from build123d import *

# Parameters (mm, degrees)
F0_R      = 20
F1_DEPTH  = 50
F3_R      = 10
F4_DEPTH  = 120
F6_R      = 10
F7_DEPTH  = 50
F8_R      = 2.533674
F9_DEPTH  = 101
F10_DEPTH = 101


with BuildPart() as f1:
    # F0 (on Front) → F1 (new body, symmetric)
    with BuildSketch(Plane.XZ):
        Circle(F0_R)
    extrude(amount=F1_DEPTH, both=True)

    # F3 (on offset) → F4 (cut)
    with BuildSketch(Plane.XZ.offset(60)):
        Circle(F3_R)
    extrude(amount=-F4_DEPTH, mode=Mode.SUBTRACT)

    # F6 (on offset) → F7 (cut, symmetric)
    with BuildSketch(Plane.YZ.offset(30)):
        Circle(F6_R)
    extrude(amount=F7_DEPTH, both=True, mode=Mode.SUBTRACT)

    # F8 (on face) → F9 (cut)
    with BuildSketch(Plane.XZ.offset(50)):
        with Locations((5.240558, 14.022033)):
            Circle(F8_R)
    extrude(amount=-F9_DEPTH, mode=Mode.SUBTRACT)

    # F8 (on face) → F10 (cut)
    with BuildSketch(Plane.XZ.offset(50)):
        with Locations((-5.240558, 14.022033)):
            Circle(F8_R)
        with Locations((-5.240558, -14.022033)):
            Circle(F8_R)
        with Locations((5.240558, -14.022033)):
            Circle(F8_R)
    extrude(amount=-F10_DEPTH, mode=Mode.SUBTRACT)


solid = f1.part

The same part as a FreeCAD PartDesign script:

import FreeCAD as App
import Part
import Sketcher
Q = App.Units.Quantity

doc = App.newDocument("Part")
body = doc.addObject("PartDesign::Body", "Body")

# Sketch on XZ plane
sketch1 = doc.addObject("Sketcher::SketchObject", "Sketch")
body.addObject(sketch1)
sketch1.AttachmentSupport = (doc.XZ_Plane, [""])
sketch1.MapMode = "FlatFace"
sketch1.addGeometry(Part.Circle(App.Vector(0, 0, 0), App.Vector(0, 0, 1), 20), False)
sketch1.addConstraint(Sketcher.Constraint("Coincident", 0, 3, -1, 1))
sketch1.addConstraint(Sketcher.Constraint("Diameter", 0, Q("40 mm")))
pad1 = doc.addObject("PartDesign::Pad", "Pad")
body.addObject(pad1)
pad1.Profile = sketch1
pad1.Length = 100
pad1.Midplane = True

# Sketch on XZ plane
sketch2 = doc.addObject("Sketcher::SketchObject", "Sketch001")
body.addObject(sketch2)
sketch2.AttachmentSupport = (doc.XZ_Plane, [""])
sketch2.MapMode = "FlatFace"
sketch2.AttachmentOffset = App.Placement(App.Vector(0, 0, 60), App.Rotation())
sketch2.addGeometry(Part.Circle(App.Vector(0, 0, 0), App.Vector(0, 0, 1), 10), False)
sketch2.addConstraint(Sketcher.Constraint("Coincident", 0, 3, -1, 1))
sketch2.addConstraint(Sketcher.Constraint("Diameter", 0, Q("20 mm")))
pocket1 = doc.addObject("PartDesign::Pocket", "Pocket")
body.addObject(pocket1)
pocket1.Profile = sketch2
pocket1.Length = 120

# Sketch on YZ plane
sketch3 = doc.addObject("Sketcher::SketchObject", "Sketch002")
body.addObject(sketch3)
sketch3.AttachmentSupport = (doc.YZ_Plane, [""])
sketch3.MapMode = "FlatFace"
sketch3.AttachmentOffset = App.Placement(App.Vector(0, 0, 30), App.Rotation())
sketch3.addGeometry(Part.Circle(App.Vector(0, 0, 0), App.Vector(0, 0, 1), 10), False)
sketch3.addConstraint(Sketcher.Constraint("Coincident", 0, 3, -1, 1))
sketch3.addConstraint(Sketcher.Constraint("Diameter", 0, Q("20 mm")))
pocket2 = doc.addObject("PartDesign::Pocket", "Pocket001")
body.addObject(pocket2)
pocket2.Profile = sketch3
pocket2.Length = 100
pocket2.Midplane = True

# Sketch on XZ plane
sketch4 = doc.addObject("Sketcher::SketchObject", "Sketch003")
body.addObject(sketch4)
sketch4.AttachmentSupport = (doc.XZ_Plane, [""])
sketch4.MapMode = "FlatFace"
sketch4.AttachmentOffset = App.Placement(App.Vector(0, 0, 50), App.Rotation())
sketch4.addGeometry(Part.Circle(App.Vector(5.240558, 14.022033, 0), App.Vector(0, 0, 1), 2.533674), False)
sketch4.addConstraint(Sketcher.Constraint("Diameter", 0, Q("5.067348 mm")))
sketch4.addConstraint(Sketcher.Constraint("DistanceX", -1, 1, 0, 3, Q("5.240558 mm")))
sketch4.addConstraint(Sketcher.Constraint("DistanceY", -1, 1, 0, 3, Q("14.022033 mm")))
pocket3 = doc.addObject("PartDesign::Pocket", "Pocket002")
body.addObject(pocket3)
pocket3.Profile = sketch4
pocket3.Length = 101

# Sketch on XZ plane
sketch5 = doc.addObject("Sketcher::SketchObject", "Sketch004")
body.addObject(sketch5)
sketch5.AttachmentSupport = (doc.XZ_Plane, [""])
sketch5.MapMode = "FlatFace"
sketch5.AttachmentOffset = App.Placement(App.Vector(0, 0, 50), App.Rotation())
sketch5.addGeometry(Part.Circle(App.Vector(-5.240558, 14.022033, 0), App.Vector(0, 0, 1), 2.533674), False)
sketch5.addGeometry(Part.Circle(App.Vector(-5.240558, -14.022033, 0), App.Vector(0, 0, 1), 2.533674), False)
sketch5.addGeometry(Part.Circle(App.Vector(5.240558, -14.022033, 0), App.Vector(0, 0, 1), 2.533674), False)
sketch5.addConstraint(Sketcher.Constraint("Equal", 0, 1))
sketch5.addConstraint(Sketcher.Constraint("Equal", 1, 2))
sketch5.addConstraint(Sketcher.Constraint("Symmetric", 0, 3, 2, 3, -1, 1))
sketch5.addConstraint(Sketcher.Constraint("Symmetric", 1, 3, 2, 3, -2))
sketch5.addConstraint(Sketcher.Constraint("Diameter", 0, Q("5.067348 mm")))
sketch5.addConstraint(Sketcher.Constraint("DistanceX", 0, 3, -1, 1, Q("5.240558 mm")))
sketch5.addConstraint(Sketcher.Constraint("DistanceY", -1, 1, 0, 3, Q("14.022033 mm")))
pocket4 = doc.addObject("PartDesign::Pocket", "Pocket003")
body.addObject(pocket4)
pocket4.Profile = sketch5
pocket4.Length = 101

doc.recompute()
